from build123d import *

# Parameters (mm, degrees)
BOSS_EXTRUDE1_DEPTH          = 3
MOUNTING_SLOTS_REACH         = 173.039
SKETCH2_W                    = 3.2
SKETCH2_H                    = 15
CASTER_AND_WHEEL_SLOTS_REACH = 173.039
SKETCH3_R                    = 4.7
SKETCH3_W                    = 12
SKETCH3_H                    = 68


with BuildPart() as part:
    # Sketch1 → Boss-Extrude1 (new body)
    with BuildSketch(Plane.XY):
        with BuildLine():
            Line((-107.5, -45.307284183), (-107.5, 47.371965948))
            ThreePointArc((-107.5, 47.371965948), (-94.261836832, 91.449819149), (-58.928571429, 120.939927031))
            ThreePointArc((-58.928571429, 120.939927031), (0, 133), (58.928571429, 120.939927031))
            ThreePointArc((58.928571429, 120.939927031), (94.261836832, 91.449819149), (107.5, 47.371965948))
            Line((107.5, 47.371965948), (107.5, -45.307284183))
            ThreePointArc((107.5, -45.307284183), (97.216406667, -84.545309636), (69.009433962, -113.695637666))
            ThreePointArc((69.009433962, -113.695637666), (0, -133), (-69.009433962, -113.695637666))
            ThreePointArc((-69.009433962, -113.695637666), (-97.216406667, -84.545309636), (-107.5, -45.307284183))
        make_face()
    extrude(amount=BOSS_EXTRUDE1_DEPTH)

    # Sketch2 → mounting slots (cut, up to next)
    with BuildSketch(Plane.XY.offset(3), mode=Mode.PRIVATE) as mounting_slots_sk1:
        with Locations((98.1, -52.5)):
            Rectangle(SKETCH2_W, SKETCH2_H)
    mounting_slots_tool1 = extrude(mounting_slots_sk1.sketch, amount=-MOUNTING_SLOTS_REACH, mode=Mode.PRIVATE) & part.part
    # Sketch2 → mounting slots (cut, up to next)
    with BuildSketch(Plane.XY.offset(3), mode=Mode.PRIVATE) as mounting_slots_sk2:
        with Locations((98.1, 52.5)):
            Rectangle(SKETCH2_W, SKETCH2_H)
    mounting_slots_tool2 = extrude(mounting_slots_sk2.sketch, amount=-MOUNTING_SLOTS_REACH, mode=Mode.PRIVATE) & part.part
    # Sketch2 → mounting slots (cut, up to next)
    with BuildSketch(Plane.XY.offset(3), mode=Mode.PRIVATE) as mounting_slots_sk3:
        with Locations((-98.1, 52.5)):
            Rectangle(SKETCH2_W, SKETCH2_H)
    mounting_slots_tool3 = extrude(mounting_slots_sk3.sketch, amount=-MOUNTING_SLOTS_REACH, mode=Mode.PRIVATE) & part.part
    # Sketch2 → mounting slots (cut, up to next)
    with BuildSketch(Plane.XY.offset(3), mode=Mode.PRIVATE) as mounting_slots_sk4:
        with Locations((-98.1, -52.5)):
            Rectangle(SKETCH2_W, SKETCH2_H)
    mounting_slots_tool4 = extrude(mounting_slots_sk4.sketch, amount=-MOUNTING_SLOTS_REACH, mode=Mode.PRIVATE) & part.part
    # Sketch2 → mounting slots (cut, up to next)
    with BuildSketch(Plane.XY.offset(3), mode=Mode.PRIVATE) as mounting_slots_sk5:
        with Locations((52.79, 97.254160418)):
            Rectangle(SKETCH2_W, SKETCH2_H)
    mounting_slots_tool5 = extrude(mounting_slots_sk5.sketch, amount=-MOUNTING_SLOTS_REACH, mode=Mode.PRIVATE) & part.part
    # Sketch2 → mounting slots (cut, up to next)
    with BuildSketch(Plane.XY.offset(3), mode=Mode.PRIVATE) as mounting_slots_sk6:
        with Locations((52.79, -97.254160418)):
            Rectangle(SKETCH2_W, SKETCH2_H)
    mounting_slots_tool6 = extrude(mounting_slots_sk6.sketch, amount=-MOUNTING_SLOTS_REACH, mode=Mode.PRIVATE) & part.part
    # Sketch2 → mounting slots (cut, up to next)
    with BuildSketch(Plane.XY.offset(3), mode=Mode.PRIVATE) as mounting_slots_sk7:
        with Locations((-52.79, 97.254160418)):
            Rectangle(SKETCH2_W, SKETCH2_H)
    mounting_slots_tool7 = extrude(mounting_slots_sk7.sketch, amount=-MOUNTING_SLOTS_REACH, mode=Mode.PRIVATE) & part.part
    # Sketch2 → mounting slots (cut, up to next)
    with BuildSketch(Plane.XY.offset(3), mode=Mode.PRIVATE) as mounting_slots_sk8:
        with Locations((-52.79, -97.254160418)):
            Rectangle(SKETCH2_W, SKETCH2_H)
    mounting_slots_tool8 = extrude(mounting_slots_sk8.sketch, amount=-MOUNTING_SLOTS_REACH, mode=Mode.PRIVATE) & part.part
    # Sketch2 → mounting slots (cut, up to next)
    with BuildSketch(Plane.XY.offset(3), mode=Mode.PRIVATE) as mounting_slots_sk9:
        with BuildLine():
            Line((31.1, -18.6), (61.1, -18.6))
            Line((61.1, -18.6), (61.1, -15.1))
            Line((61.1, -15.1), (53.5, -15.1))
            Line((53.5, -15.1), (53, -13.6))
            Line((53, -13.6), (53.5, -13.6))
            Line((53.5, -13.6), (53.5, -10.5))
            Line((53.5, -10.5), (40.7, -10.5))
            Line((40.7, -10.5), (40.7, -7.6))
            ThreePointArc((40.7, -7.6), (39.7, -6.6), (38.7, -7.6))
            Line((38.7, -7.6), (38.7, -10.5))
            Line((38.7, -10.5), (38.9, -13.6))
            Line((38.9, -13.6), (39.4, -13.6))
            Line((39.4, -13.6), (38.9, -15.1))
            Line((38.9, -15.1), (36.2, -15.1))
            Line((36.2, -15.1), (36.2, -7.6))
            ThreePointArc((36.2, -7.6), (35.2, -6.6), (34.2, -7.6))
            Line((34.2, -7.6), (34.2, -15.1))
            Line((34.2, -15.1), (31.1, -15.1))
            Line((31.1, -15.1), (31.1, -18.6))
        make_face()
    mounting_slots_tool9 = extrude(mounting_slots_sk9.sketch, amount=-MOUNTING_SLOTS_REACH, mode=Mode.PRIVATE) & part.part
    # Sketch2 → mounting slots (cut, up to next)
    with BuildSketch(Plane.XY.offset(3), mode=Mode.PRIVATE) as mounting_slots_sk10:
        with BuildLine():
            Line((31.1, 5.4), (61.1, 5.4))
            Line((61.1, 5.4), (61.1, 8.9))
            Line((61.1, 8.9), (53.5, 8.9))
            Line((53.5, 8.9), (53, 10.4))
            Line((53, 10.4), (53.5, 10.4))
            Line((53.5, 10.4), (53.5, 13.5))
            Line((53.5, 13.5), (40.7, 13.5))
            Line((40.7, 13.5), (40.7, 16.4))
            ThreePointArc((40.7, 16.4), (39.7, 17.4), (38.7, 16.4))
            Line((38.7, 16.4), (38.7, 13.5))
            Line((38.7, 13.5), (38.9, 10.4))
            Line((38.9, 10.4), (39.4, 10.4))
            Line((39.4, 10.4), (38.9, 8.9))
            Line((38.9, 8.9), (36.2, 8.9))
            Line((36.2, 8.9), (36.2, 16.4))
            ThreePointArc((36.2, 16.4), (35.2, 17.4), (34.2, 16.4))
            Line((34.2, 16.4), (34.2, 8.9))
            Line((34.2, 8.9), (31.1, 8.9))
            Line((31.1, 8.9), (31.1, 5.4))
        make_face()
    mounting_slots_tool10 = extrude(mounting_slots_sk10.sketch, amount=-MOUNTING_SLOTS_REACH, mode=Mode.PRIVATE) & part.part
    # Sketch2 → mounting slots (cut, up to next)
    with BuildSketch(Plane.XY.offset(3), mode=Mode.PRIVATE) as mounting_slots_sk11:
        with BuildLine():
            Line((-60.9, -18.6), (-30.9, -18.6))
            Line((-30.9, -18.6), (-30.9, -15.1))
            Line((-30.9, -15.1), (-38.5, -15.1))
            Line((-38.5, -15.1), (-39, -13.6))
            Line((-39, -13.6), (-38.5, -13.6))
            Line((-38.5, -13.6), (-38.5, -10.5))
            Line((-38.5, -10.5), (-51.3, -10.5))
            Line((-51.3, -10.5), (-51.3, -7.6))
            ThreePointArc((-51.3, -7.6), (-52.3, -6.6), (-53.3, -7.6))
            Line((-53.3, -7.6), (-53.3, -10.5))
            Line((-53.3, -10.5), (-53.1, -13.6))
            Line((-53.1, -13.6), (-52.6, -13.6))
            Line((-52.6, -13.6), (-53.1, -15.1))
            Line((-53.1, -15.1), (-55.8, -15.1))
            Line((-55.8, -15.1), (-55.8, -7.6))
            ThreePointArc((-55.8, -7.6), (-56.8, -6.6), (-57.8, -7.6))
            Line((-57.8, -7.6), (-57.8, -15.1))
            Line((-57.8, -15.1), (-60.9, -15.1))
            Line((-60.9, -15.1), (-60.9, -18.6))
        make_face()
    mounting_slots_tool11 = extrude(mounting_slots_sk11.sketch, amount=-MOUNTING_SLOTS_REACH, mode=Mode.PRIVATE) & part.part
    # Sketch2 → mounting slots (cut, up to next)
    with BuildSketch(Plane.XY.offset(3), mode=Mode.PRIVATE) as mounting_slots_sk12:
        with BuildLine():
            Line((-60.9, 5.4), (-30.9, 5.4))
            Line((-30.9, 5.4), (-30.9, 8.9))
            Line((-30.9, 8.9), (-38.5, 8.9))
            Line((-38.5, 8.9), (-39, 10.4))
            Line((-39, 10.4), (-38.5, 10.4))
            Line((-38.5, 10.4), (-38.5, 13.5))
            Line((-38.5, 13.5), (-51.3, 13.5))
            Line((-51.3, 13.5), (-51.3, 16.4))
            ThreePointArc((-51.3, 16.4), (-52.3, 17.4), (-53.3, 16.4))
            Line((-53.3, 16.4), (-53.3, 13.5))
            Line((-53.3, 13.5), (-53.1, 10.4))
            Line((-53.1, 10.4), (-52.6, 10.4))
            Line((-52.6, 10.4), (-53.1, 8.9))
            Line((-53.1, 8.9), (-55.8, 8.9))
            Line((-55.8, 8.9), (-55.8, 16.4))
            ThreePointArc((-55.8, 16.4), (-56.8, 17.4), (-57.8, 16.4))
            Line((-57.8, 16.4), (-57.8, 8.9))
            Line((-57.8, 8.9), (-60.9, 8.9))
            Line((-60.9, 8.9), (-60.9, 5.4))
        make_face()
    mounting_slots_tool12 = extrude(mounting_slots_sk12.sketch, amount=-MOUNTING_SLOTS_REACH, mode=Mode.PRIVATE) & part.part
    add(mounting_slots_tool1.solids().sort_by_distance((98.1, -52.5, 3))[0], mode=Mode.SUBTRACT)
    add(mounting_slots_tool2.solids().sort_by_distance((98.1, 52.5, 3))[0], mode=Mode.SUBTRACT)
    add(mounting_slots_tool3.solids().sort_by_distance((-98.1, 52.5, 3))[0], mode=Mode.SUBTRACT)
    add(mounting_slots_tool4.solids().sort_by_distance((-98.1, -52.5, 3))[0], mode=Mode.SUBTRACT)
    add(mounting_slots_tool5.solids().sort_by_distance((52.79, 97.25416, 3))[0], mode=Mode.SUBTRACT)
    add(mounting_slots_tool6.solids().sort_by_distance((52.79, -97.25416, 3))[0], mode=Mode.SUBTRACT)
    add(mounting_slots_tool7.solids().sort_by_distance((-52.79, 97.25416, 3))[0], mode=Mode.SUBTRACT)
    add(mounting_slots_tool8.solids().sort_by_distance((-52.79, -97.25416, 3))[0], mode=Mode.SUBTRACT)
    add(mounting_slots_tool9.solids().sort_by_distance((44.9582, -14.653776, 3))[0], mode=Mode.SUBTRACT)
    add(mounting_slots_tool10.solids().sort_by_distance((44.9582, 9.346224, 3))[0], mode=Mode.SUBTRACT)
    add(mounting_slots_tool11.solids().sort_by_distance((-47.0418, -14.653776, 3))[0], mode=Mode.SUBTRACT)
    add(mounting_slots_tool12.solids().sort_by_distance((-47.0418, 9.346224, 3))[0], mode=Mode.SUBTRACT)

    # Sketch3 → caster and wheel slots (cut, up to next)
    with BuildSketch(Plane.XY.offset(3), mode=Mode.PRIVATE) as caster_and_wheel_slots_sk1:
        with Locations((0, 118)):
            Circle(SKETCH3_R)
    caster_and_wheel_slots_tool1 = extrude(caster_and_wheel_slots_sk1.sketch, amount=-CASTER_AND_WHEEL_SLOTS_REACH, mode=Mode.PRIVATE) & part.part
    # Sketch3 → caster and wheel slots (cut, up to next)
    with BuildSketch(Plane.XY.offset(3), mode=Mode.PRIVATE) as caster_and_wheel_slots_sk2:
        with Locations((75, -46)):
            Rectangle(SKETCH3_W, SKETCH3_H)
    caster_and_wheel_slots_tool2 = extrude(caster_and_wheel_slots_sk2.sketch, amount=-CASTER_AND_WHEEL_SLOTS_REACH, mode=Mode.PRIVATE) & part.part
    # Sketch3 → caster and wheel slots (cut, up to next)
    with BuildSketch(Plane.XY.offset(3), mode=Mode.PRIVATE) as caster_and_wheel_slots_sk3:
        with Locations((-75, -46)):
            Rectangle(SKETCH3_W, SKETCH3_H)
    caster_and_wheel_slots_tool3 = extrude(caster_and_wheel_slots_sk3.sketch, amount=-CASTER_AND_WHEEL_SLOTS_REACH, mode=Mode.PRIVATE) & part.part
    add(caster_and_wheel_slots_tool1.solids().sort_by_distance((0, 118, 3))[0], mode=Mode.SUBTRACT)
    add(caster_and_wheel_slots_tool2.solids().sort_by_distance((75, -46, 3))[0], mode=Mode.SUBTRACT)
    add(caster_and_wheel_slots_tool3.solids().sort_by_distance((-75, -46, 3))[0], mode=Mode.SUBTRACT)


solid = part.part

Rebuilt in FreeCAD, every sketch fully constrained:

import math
import FreeCAD as App
import Part
import Sketcher

V = App.Vector

doc = App.newDocument("Part")
body = doc.addObject("PartDesign::Body", "Body")

sketch1 = body.newObject("Sketcher::SketchObject", "Sketch")
sketch1.AttachmentSupport = (doc.getObject("XY_Plane"), [""])
sketch1.MapMode = "FlatFace"
sketch1.addGeometry([
    Part.LineSegment(V(-108, 47, 0), V(-108, -45, 0)),
    Part.ArcOfCircle(Part.Circle(V(-28, -45, 0), V(0, 0, 1), 80), math.radians(180), math.radians(239)),
    Part.ArcOfCircle(Part.Circle(V(0, 0, 0), V(0, 0, 1), 133), math.radians(-121), math.radians(-59)),
    Part.ArcOfCircle(Part.Circle(V(28, -45, 0), V(0, 0, 1), 80), math.radians(-59), math.radians(0)),
    Part.LineSegment(V(108, -45, 0), V(108, 47, 0)),
    Part.ArcOfCircle(Part.Circle(V(28, 47, 0), V(0, 0, 1), 80), math.radians(0), math.radians(67)),
    Part.ArcOfCircle(Part.Circle(V(0, -17, 0), V(0, 0, 1), 150), math.radians(67), math.radians(113)),
    Part.ArcOfCircle(Part.Circle(V(-28, 47, 0), V(0, 0, 1), 80), math.radians(113), math.radians(180)),
], False)
sketch1.addConstraint([
    Sketcher.Constraint("Tangent", 0, 2, 1, 1),
    Sketcher.Constraint("Tangent", 1, 2, 2, 1),
    Sketcher.Constraint("Tangent", 2, 2, 3, 1),
    Sketcher.Constraint("Tangent", 3, 2, 4, 1),
    Sketcher.Constraint("Tangent", 4, 2, 5, 1),
    Sketcher.Constraint("Tangent", 5, 2, 6, 1),
    Sketcher.Constraint("Tangent", 6, 2, 7, 1),
    Sketcher.Constraint("Tangent", 7, 2, 0, 1),
    Sketcher.Constraint("Vertical", 0),
    Sketcher.Constraint("Vertical", 4),
    Sketcher.Constraint("Coincident", 2, 3, -1, 1),
    Sketcher.Constraint("Equal", 1, 3),
    Sketcher.Constraint("Equal", 3, 5),
    Sketcher.Constraint("Equal", 5, 7),
    Sketcher.Constraint("Symmetric", 5, 3, 7, 3, -2),
    Sketcher.Constraint("Radius", 1, 80.0),
    Sketcher.Constraint("Radius", 2, 133.0),
    Sketcher.Constraint("Radius", 6, 150.0),
    Sketcher.Constraint("DistanceY", 6, 3, -1, 1, 17.0),
    Sketcher.Constraint("DistanceX", 1, 3, 3, 3, 55.0),
])
pad1 = body.newObject("PartDesign::Pad", "Pad")
pad1.Profile = sketch1
pad1.Length = 3

sketch2 = body.newObject("Sketcher::SketchObject", "Sketch001")
sketch2.AttachmentSupport = (doc.getObject("XY_Plane"), [""])
sketch2.MapMode = "FlatFace"
sketch2.AttachmentOffset = App.Placement(V(0, 0, 3), App.Rotation())
sketch2.addGeometry([
    Part.LineSegment(V(96.5, -45, 0), V(96.5, -60, 0)),
    Part.LineSegment(V(96.5, -60, 0), V(99.7, -60, 0)),
    Part.LineSegment(V(99.7, -60, 0), V(99.7, -45, 0)),
    Part.LineSegment(V(99.7, -45, 0), V(96.5, -45, 0)),
], False)
sketch2.addConstraint([
    Sketcher.Constraint("Coincident", 0, 2, 1, 1),
    Sketcher.Constraint("Coincident", 1, 2, 2, 1),
    Sketcher.Constraint("Coincident", 2, 2, 3, 1),
    Sketcher.Constraint("Coincident", 3, 2, 0, 1),
    Sketcher.Constraint("Vertical", 0),
    Sketcher.Constraint("Horizontal", 1),
    Sketcher.Constraint("Vertical", 2),
    Sketcher.Constraint("Horizontal", 3),
    Sketcher.Constraint("DistanceY", 0, 2, 0, 1, 15.0),
    Sketcher.Constraint("DistanceX", 1, 1, 1, 2, 3.2),
    Sketcher.Constraint("DistanceY", 0, 2, -1, 1, 60.0),
    Sketcher.Constraint("DistanceX", -1, 1, 0, 2, 96.5),
])
pocket1 = body.newObject("PartDesign::Pocket", "Pocket")
pocket1.Profile = sketch2
pocket1.Type = "UpToFirst"

sketch3 = body.newObject("Sketcher::SketchObject", "Sketch002")
sketch3.AttachmentSupport = (doc.getObject("XY_Plane"), [""])
sketch3.MapMode = "FlatFace"
sketch3.AttachmentOffset = App.Placement(V(0, 0, 3), App.Rotation())
sketch3.addGeometry([
    Part.LineSegment(V(96.5, 60, 0), V(96.5, 45, 0)),
    Part.LineSegment(V(96.5, 45, 0), V(99.7, 45, 0)),
    Part.LineSegment(V(99.7, 45, 0), V(99.7, 60, 0)),
    Part.LineSegment(V(99.7, 60, 0), V(96.5, 60, 0)),
], False)
sketch3.addConstraint([
    Sketcher.Constraint("Coincident", 0, 2, 1, 1),
    Sketcher.Constraint("Coincident", 1, 2, 2, 1),
    Sketcher.Constraint("Coincident", 2, 2, 3, 1),
    Sketcher.Constraint("Coincident", 3, 2, 0, 1),
    Sketcher.Constraint("Vertical", 0),
    Sketcher.Constraint("Horizontal", 1),
    Sketcher.Constraint("Vertical", 2),
    Sketcher.Constraint("Horizontal", 3),
    Sketcher.Constraint("DistanceY", 0, 2, 0, 1, 15.0),
    Sketcher.Constraint("DistanceX", 1, 1, 1, 2, 3.2),
    Sketcher.Constraint("DistanceY", -1, 1, 0, 2, 45.0),
    Sketcher.Constraint("DistanceX", -1, 1, 0, 2, 96.5),
])
pocket2 = body.newObject("PartDesign::Pocket", "Pocket001")
pocket2.Profile = sketch3
pocket2.Type = "UpToFirst"

sketch4 = body.newObject("Sketcher::SketchObject", "Sketch003")
sketch4.AttachmentSupport = (doc.getObject("XY_Plane"), [""])
sketch4.MapMode = "FlatFace"
sketch4.AttachmentOffset = App.Placement(V(0, 0, 3), App.Rotation())
sketch4.addGeometry([
    Part.LineSegment(V(-99.7, 60, 0), V(-99.7, 45, 0)),
    Part.LineSegment(V(-99.7, 45, 0), V(-96.5, 45, 0)),
    Part.LineSegment(V(-96.5, 45, 0), V(-96.5, 60, 0)),
    Part.LineSegment(V(-96.5, 60, 0), V(-99.7, 60, 0)),
], False)
sketch4.addConstraint([
    Sketcher.Constraint("Coincident", 0, 2, 1, 1),
    Sketcher.Constraint("Coincident", 1, 2, 2, 1),
    Sketcher.Constraint("Coincident", 2, 2, 3, 1),
    Sketcher.Constraint("Coincident", 3, 2, 0, 1),
    Sketcher.Constraint("Vertical", 0),
    Sketcher.Constraint("Horizontal", 1),
    Sketcher.Constraint("Vertical", 2),
    Sketcher.Constraint("Horizontal", 3),
    Sketcher.Constraint("DistanceY", 0, 2, 0, 1, 15.0),
    Sketcher.Constraint("DistanceX", 1, 1, 1, 2, 3.2),
    Sketcher.Constraint("DistanceY", -1, 1, 0, 2, 45.0),
    Sketcher.Constraint("DistanceX", 0, 2, -1, 1, 99.7),
])
pocket3 = body.newObject("PartDesign::Pocket", "Pocket002")
pocket3.Profile = sketch4
pocket3.Type = "UpToFirst"

sketch5 = body.newObject("Sketcher::SketchObject", "Sketch004")
sketch5.AttachmentSupport = (doc.getObject("XY_Plane"), [""])
sketch5.MapMode = "FlatFace"
sketch5.AttachmentOffset = App.Placement(V(0, 0, 3), App.Rotation())
sketch5.addGeometry([
    Part.LineSegment(V(-99.7, -45, 0), V(-99.7, -60, 0)),
    Part.LineSegment(V(-99.7, -60, 0), V(-96.5, -60, 0)),
    Part.LineSegment(V(-96.5, -60, 0), V(-96.5, -45, 0)),
    Part.LineSegment(V(-96.5, -45, 0), V(-99.7, -45, 0)),
], False)
sketch5.addConstraint([
    Sketcher.Constraint("Coincident", 0, 2, 1, 1),
    Sketcher.Constraint("Coincident", 1, 2, 2, 1),
    Sketcher.Constraint("Coincident", 2, 2, 3, 1),
    Sketcher.Constraint("Coincident", 3, 2, 0, 1),
    Sketcher.Constraint("Vertical", 0),
    Sketcher.Constraint("Horizontal", 1),
    Sketcher.Constraint("Vertical", 2),
    Sketcher.Constraint("Horizontal", 3),
    Sketcher.Constraint("DistanceY", 0, 2, 0, 1, 15.0),
    Sketcher.Constraint("DistanceX", 1, 1, 1, 2, 3.2),
    Sketcher.Constraint("DistanceY", 0, 2, -1, 1, 60.0),
    Sketcher.Constraint("DistanceX", 0, 2, -1, 1, 99.7),
])
pocket4 = body.newObject("PartDesign::Pocket", "Pocket003")
pocket4.Profile = sketch5
pocket4.Type = "UpToFirst"

sketch6 = body.newObject("Sketcher::SketchObject", "Sketch005")
sketch6.AttachmentSupport = (doc.getObject("XY_Plane"), [""])
sketch6.MapMode = "FlatFace"
sketch6.AttachmentOffset = App.Placement(V(0, 0, 3), App.Rotation())
sketch6.addGeometry([
    Part.LineSegment(V(51.2, 104.8, 0), V(51.2, 89.8, 0)),
    Part.LineSegment(V(51.2, 89.8, 0), V(54.4, 89.8, 0)),
    Part.LineSegment(V(54.4, 89.8, 0), V(54.4, 104.8, 0)),
    Part.LineSegment(V(54.4, 104.8, 0), V(51.2, 104.8, 0)),
], False)
sketch6.addConstraint([
    Sketcher.Constraint("Coincident", 0, 2, 1, 1),
    Sketcher.Constraint("Coincident", 1, 2, 2, 1),
    Sketcher.Constraint("Coincident", 2, 2, 3, 1),
    Sketcher.Constraint("Coincident", 3, 2, 0, 1),
    Sketcher.Constraint("Vertical", 0),
    Sketcher.Constraint("Horizontal", 1),
    Sketcher.Constraint("Vertical", 2),
    Sketcher.Constraint("Horizontal", 3),
    Sketcher.Constraint("DistanceY", 0, 2, 0, 1, 15.0),
    Sketcher.Constraint("DistanceX", 1, 1, 1, 2, 3.2),
    Sketcher.Constraint("DistanceX", -1, 1, 0, 2, 51.19),
    Sketcher.Constraint("DistanceY", -1, 1, 0, 2, 89.75416),
])
pocket5 = body.newObject("PartDesign::Pocket", "Pocket004")
pocket5.Profile = sketch6
pocket5.Type = "UpToFirst"

sketch7 = body.newObject("Sketcher::SketchObject", "Sketch006")
sketch7.AttachmentSupport = (doc.getObject("XY_Plane"), [""])
sketch7.MapMode = "FlatFace"
sketch7.AttachmentOffset = App.Placement(V(0, 0, 3), App.Rotation())
sketch7.addGeometry([
    Part.LineSegment(V(51.2, -89.8, 0), V(51.2, -104.8, 0)),
    Part.LineSegment(V(51.2, -104.8, 0), V(54.4, -104.8, 0)),
    Part.LineSegment(V(54.4, -104.8, 0), V(54.4, -89.8, 0)),
    Part.LineSegment(V(54.4, -89.8, 0), V(51.2, -89.8, 0)),
], False)
sketch7.addConstraint([
    Sketcher.Constraint("Coincident", 0, 2, 1, 1),
    Sketcher.Constraint("Coincident", 1, 2, 2, 1),
    Sketcher.Constraint("Coincident", 2, 2, 3, 1),
    Sketcher.Constraint("Coincident", 3, 2, 0, 1),
    Sketcher.Constraint("Vertical", 0),
    Sketcher.Constraint("Horizontal", 1),
    Sketcher.Constraint("Vertical", 2),
    Sketcher.Constraint("Horizontal", 3),
    Sketcher.Constraint("DistanceY", 0, 2, 0, 1, 15.0),
    Sketcher.Constraint("DistanceX", 1, 1, 1, 2, 3.2),
    Sketcher.Constraint("DistanceX", -1, 1, 0, 2, 51.19),
    Sketcher.Constraint("DistanceY", 0, 2, -1, 1, 104.75416),
])
pocket6 = body.newObject("PartDesign::Pocket", "Pocket005")
pocket6.Profile = sketch7
pocket6.Type = "UpToFirst"

sketch8 = body.newObject("Sketcher::SketchObject", "Sketch007")
sketch8.AttachmentSupport = (doc.getObject("XY_Plane"), [""])
sketch8.MapMode = "FlatFace"
sketch8.AttachmentOffset = App.Placement(V(0, 0, 3), App.Rotation())
sketch8.addGeometry([
    Part.LineSegment(V(-54.4, 104.8, 0), V(-54.4, 89.8, 0)),
    Part.LineSegment(V(-54.4, 89.8, 0), V(-51.2, 89.8, 0)),
    Part.LineSegment(V(-51.2, 89.8, 0), V(-51.2, 104.8, 0)),
    Part.LineSegment(V(-51.2, 104.8, 0), V(-54.4, 104.8, 0)),
], False)
sketch8.addConstraint([
    Sketcher.Constraint("Coincident", 0, 2, 1, 1),
    Sketcher.Constraint("Coincident", 1, 2, 2, 1),
    Sketcher.Constraint("Coincident", 2, 2, 3, 1),
    Sketcher.Constraint("Coincident", 3, 2, 0, 1),
    Sketcher.Constraint("Vertical", 0),
    Sketcher.Constraint("Horizontal", 1),
    Sketcher.Constraint("Vertical", 2),
    Sketcher.Constraint("Horizontal", 3),
    Sketcher.Constraint("DistanceY", 0, 2, 0, 1, 15.0),
    Sketcher.Constraint("DistanceX", 1, 1, 1, 2, 3.2),
    Sketcher.Constraint("DistanceX", 0, 2, -1, 1, 54.39),
    Sketcher.Constraint("DistanceY", -1, 1, 0, 2, 89.75416),
])
pocket7 = body.newObject("PartDesign::Pocket", "Pocket006")
pocket7.Profile = sketch8
pocket7.Type = "UpToFirst"

sketch9 = body.newObject("Sketcher::SketchObject", "Sketch008")
sketch9.AttachmentSupport = (doc.getObject("XY_Plane"), [""])
sketch9.MapMode = "FlatFace"
sketch9.AttachmentOffset = App.Placement(V(0, 0, 3), App.Rotation())
sketch9.addGeometry([
    Part.LineSegment(V(-54.4, -89.8, 0), V(-54.4, -104.8, 0)),
    Part.LineSegment(V(-54.4, -104.8, 0), V(-51.2, -104.8, 0)),
    Part.LineSegment(V(-51.2, -104.8, 0), V(-51.2, -89.8, 0)),
    Part.LineSegment(V(-51.2, -89.8, 0), V(-54.4, -89.8, 0)),
], False)
sketch9.addConstraint([
    Sketcher.Constraint("Coincident", 0, 2, 1, 1),
    Sketcher.Constraint("Coincident", 1, 2, 2, 1),
    Sketcher.Constraint("Coincident", 2, 2, 3, 1),
    Sketcher.Constraint("Coincident", 3, 2, 0, 1),
    Sketcher.Constraint("Vertical", 0),
    Sketcher.Constraint("Horizontal", 1),
    Sketcher.Constraint("Vertical", 2),
    Sketcher.Constraint("Horizontal", 3),
    Sketcher.Constraint("DistanceY", 0, 2, 0, 1, 15.0),
    Sketcher.Constraint("DistanceX", 1, 1, 1, 2, 3.2),
    Sketcher.Constraint("DistanceX", 0, 2, -1, 1, 54.39),
    Sketcher.Constraint("DistanceY", 0, 2, -1, 1, 104.75416),
])
pocket8 = body.newObject("PartDesign::Pocket", "Pocket007")
pocket8.Profile = sketch9
pocket8.Type = "UpToFirst"

sketch10 = body.newObject("Sketcher::SketchObject", "Sketch009")
sketch10.AttachmentSupport = (doc.getObject("XY_Plane"), [""])
sketch10.MapMode = "FlatFace"
sketch10.AttachmentOffset = App.Placement(V(0, 0, 3), App.Rotation())
sketch10.addGeometry([
    Part.LineSegment(V(31.1, -18.6, 0), V(61.1, -18.6, 0)),
    Part.LineSegment(V(61.1, -18.6, 0), V(61.1, -15.1, 0)),
    Part.LineSegment(V(61.1, -15.1, 0), V(53.5, -15.1, 0)),
    Part.LineSegment(V(53.5, -15.1, 0), V(53, -13.6, 0)),
    Part.LineSegment(V(53, -13.6, 0), V(53.5, -13.6, 0)),
    Part.LineSegment(V(53.5, -13.6, 0), V(53.5, -10.5, 0)),
    Part.LineSegment(V(53.5, -10.5, 0), V(40.7, -10.5, 0)),
    Part.LineSegment(V(40.7, -10.5, 0), V(40.7, -7.6, 0)),
    Part.ArcOfCircle(Part.Circle(V(39.7, -7.6, 0), V(0, 0, 1), 1), math.radians(0), math.radians(180)),
    Part.LineSegment(V(38.7, -7.6, 0), V(38.7, -10.5, 0)),
    Part.LineSegment(V(38.7, -10.5, 0), V(38.9, -13.6, 0)),
    Part.LineSegment(V(38.9, -13.6, 0), V(39.4, -13.6, 0)),
    Part.LineSegment(V(39.4, -13.6, 0), V(38.9, -15.1, 0)),
    Part.LineSegment(V(38.9, -15.1, 0), V(36.2, -15.1, 0)),
    Part.LineSegment(V(36.2, -15.1, 0), V(36.2, -7.6, 0)),
    Part.ArcOfCircle(Part.Circle(V(35.2, -7.6, 0), V(0, 0, 1), 1), math.radians(0), math.radians(180)),
    Part.LineSegment(V(34.2, -7.6, 0), V(34.2, -15.1, 0)),
    Part.LineSegment(V(34.2, -15.1, 0), V(31.1, -15.1, 0)),
    Part.LineSegment(V(31.1, -15.1, 0), V(31.1, -18.6, 0)),
], False)
sketch10.addConstraint([
    Sketcher.Constraint("Coincident", 0, 2, 1, 1),
    Sketcher.Constraint("Coincident", 1, 2, 2, 1),
    Sketcher.Constraint("Coincident", 2, 2, 3, 1),
    Sketcher.Constraint("Coincident", 3, 2, 4, 1),
    Sketcher.Constraint("Coincident", 4, 2, 5, 1),
    Sketcher.Constraint("Coincident", 5, 2, 6, 1),
    Sketcher.Constraint("Coincident", 6, 2, 7, 1),
    Sketcher.Constraint("Tangent", 7, 2, 8, 1),
    Sketcher.Constraint("Tangent", 8, 2, 9, 1),
    Sketcher.Constraint("Coincident", 9, 2, 10, 1),
    Sketcher.Constraint("Coincident", 10, 2, 11, 1),
    Sketcher.Constraint("Coincident", 11, 2, 12, 1),
    Sketcher.Constraint("Coincident", 12, 2, 13, 1),
    Sketcher.Constraint("Coincident", 13, 2, 14, 1),
    Sketcher.Constraint("Tangent", 14, 2, 15, 1),
    Sketcher.Constraint("Tangent", 15, 2, 16, 1),
    Sketcher.Constraint("Coincident", 16, 2, 17, 1),
    Sketcher.Constraint("Coincident", 17, 2, 18, 1),
    Sketcher.Constraint("Coincident", 18, 2, 0, 1),
    Sketcher.Constraint("Horizontal", 0),
    Sketcher.Constraint("Vertical", 1),
    Sketcher.Constraint("Horizontal", 2),
    Sketcher.Constraint("Horizontal", 4),
    Sketcher.Constraint("Vertical", 5),
    Sketcher.Constraint("Horizontal", 6),
    Sketcher.Constraint("Vertical", 7),
    Sketcher.Constraint("Vertical", 9),
    Sketcher.Constraint("Horizontal", 11),
    Sketcher.Constraint("Horizontal", 13),
    Sketcher.Constraint("Vertical", 14),
    Sketcher.Constraint("Vertical", 16),
    Sketcher.Constraint("Horizontal", 17),
    Sketcher.Constraint("Vertical", 18),
    Sketcher.Constraint("Equal", 8, 15),
    Sketcher.Constraint("Horizontal", 8, 3, 15, 3),
    Sketcher.Constraint("Horizontal", 6, 2, 9, 2),
    Sketcher.Constraint("Horizontal", 4, 2, 10, 2),
    Sketcher.Constraint("Horizontal", 2, 2, 12, 2),
    Sketcher.Constraint("Horizontal", 13, 2, 16, 2),
    Sketcher.Constraint("Vertical", 2, 2, 4, 2),
    Sketcher.Constraint("Vertical", 10, 2, 12, 2),
    Sketcher.Constraint("Equal", 4, 11),
    Sketcher.Constraint("Equal", 17, 5),
    Sketcher.Constraint("Radius", 8, 1.0),
    Sketcher.Constraint("DistanceX", 0, 1, 0, 2, 30.0),
    Sketcher.Constraint("DistanceX", 2, 2, 2, 1, 7.6),
    Sketcher.Constraint("DistanceX", 4, 1, 4, 2, 0.5),
    Sketcher.Constraint("DistanceX", 6, 2, 6, 1, 12.8),
    Sketcher.Constraint("DistanceX", 13, 2, 13, 1, 2.7),
    Sketcher.Constraint("DistanceX", 17, 2, 17, 1, 3.1),
    Sketcher.Constraint("DistanceY", 1, 1, 1, 2, 3.5),
    Sketcher.Constraint("DistanceY", 7, 1, 7, 2, 2.9),
    Sketcher.Constraint("DistanceY", 14, 1, 14, 2, 7.5),
    Sketcher.Constraint("DistanceX", -1, 1, 3, 2, 53.0),
    Sketcher.Constraint("DistanceY", 8, 3, -1, 1, 7.6),
])
pocket9 = body.newObject("PartDesign::Pocket", "Pocket008")
pocket9.Profile = sketch10
pocket9.Type = "UpToFirst"

sketch11 = body.newObject("Sketcher::SketchObject", "Sketch010")
sketch11.AttachmentSupport = (doc.getObject("XY_Plane"), [""])
sketch11.MapMode = "FlatFace"
sketch11.AttachmentOffset = App.Placement(V(0, 0, 3), App.Rotation())
sketch11.addGeometry([
    Part.LineSegment(V(31.1, 5.4, 0), V(61.1, 5.4, 0)),
    Part.LineSegment(V(61.1, 5.4, 0), V(61.1, 8.9, 0)),
    Part.LineSegment(V(61.1, 8.9, 0), V(53.5, 8.9, 0)),
    Part.LineSegment(V(53.5, 8.9, 0), V(53, 10.4, 0)),
    Part.LineSegment(V(53, 10.4, 0), V(53.5, 10.4, 0)),
    Part.LineSegment(V(53.5, 10.4, 0), V(53.5, 13.5, 0)),
    Part.LineSegment(V(53.5, 13.5, 0), V(40.7, 13.5, 0)),
    Part.LineSegment(V(40.7, 13.5, 0), V(40.7, 16.4, 0)),
    Part.ArcOfCircle(Part.Circle(V(39.7, 16.4, 0), V(0, 0, 1), 1), math.radians(0), math.radians(180)),
    Part.LineSegment(V(38.7, 16.4, 0), V(38.7, 13.5, 0)),
    Part.LineSegment(V(38.7, 13.5, 0), V(38.9, 10.4, 0)),
    Part.LineSegment(V(38.9, 10.4, 0), V(39.4, 10.4, 0)),
    Part.LineSegment(V(39.4, 10.4, 0), V(38.9, 8.9, 0)),
    Part.LineSegment(V(38.9, 8.9, 0), V(36.2, 8.9, 0)),
    Part.LineSegment(V(36.2, 8.9, 0), V(36.2, 16.4, 0)),
    Part.ArcOfCircle(Part.Circle(V(35.2, 16.4, 0), V(0, 0, 1), 1), math.radians(0), math.radians(180)),
    Part.LineSegment(V(34.2, 16.4, 0), V(34.2, 8.9, 0)),
    Part.LineSegment(V(34.2, 8.9, 0), V(31.1, 8.9, 0)),
    Part.LineSegment(V(31.1, 8.9, 0), V(31.1, 5.4, 0)),
], False)
sketch11.addConstraint([
    Sketcher.Constraint("Coincident", 0, 2, 1, 1),
    Sketcher.Constraint("Coincident", 1, 2, 2, 1),
    Sketcher.Constraint("Coincident", 2, 2, 3, 1),
    Sketcher.Constraint("Coincident", 3, 2, 4, 1),
    Sketcher.Constraint("Coincident", 4, 2, 5, 1),
    Sketcher.Constraint("Coincident", 5, 2, 6, 1),
    Sketcher.Constraint("Coincident", 6, 2, 7, 1),
    Sketcher.Constraint("Tangent", 7, 2, 8, 1),
    Sketcher.Constraint("Tangent", 8, 2, 9, 1),
    Sketcher.Constraint("Coincident", 9, 2, 10, 1),
    Sketcher.Constraint("Coincident", 10, 2, 11, 1),
    Sketcher.Constraint("Coincident", 11, 2, 12, 1),
    Sketcher.Constraint("Coincident", 12, 2, 13, 1),
    Sketcher.Constraint("Coincident", 13, 2, 14, 1),
    Sketcher.Constraint("Tangent", 14, 2, 15, 1),
    Sketcher.Constraint("Tangent", 15, 2, 16, 1),
    Sketcher.Constraint("Coincident", 16, 2, 17, 1),
    Sketcher.Constraint("Coincident", 17, 2, 18, 1),
    Sketcher.Constraint("Coincident", 18, 2, 0, 1),
    Sketcher.Constraint("Horizontal", 0),
    Sketcher.Constraint("Vertical", 1),
    Sketcher.Constraint("Horizontal", 2),
    Sketcher.Constraint("Horizontal", 4),
    Sketcher.Constraint("Vertical", 5),
    Sketcher.Constraint("Horizontal", 6),
    Sketcher.Constraint("Vertical", 7),
    Sketcher.Constraint("Vertical", 9),
    Sketcher.Constraint("Horizontal", 11),
    Sketcher.Constraint("Horizontal", 13),
    Sketcher.Constraint("Vertical", 14),
    Sketcher.Constraint("Vertical", 16),
    Sketcher.Constraint("Horizontal", 17),
    Sketcher.Constraint("Vertical", 18),
    Sketcher.Constraint("Equal", 8, 15),
    Sketcher.Constraint("Horizontal", 8, 3, 15, 3),
    Sketcher.Constraint("Horizontal", 6, 2, 9, 2),
    Sketcher.Constraint("Horizontal", 4, 2, 10, 2),
    Sketcher.Constraint("Horizontal", 2, 2, 12, 2),
    Sketcher.Constraint("Horizontal", 13, 2, 16, 2),
    Sketcher.Constraint("Vertical", 2, 2, 4, 2),
    Sketcher.Constraint("Vertical", 10, 2, 12, 2),
    Sketcher.Constraint("Equal", 4, 11),
    Sketcher.Constraint("Equal", 17, 5),
    Sketcher.Constraint("Radius", 8, 1.0),
    Sketcher.Constraint("DistanceX", 0, 1, 0, 2, 30.0),
    Sketcher.Constraint("DistanceX", 2, 2, 2, 1, 7.6),
    Sketcher.Constraint("DistanceX", 4, 1, 4, 2, 0.5),
    Sketcher.Constraint("DistanceX", 6, 2, 6, 1, 12.8),
    Sketcher.Constraint("DistanceX", 13, 2, 13, 1, 2.7),
    Sketcher.Constraint("DistanceX", 17, 2, 17, 1, 3.1),
    Sketcher.Constraint("DistanceY", 1, 1, 1, 2, 3.5),
    Sketcher.Constraint("DistanceY", 7, 1, 7, 2, 2.9),
    Sketcher.Constraint("DistanceY", 14, 1, 14, 2, 7.5),
    Sketcher.Constraint("DistanceX", -1, 1, 3, 2, 53.0),
    Sketcher.Constraint("DistanceY", -1, 1, 8, 3, 16.4),
])
pocket10 = body.newObject("PartDesign::Pocket", "Pocket009")
pocket10.Profile = sketch11
pocket10.Type = "UpToFirst"

sketch12 = body.newObject("Sketcher::SketchObject", "Sketch011")
sketch12.AttachmentSupport = (doc.getObject("XY_Plane"), [""])
sketch12.MapMode = "FlatFace"
sketch12.AttachmentOffset = App.Placement(V(0, 0, 3), App.Rotation())
sketch12.addGeometry([
    Part.LineSegment(V(-60.9, -18.6, 0), V(-30.9, -18.6, 0)),
    Part.LineSegment(V(-30.9, -18.6, 0), V(-30.9, -15.1, 0)),
    Part.LineSegment(V(-30.9, -15.1, 0), V(-38.5, -15.1, 0)),
    Part.LineSegment(V(-38.5, -15.1, 0), V(-39, -13.6, 0)),
    Part.LineSegment(V(-39, -13.6, 0), V(-38.5, -13.6, 0)),
    Part.LineSegment(V(-38.5, -13.6, 0), V(-38.5, -10.5, 0)),
    Part.LineSegment(V(-38.5, -10.5, 0), V(-51.3, -10.5, 0)),
    Part.LineSegment(V(-51.3, -10.5, 0), V(-51.3, -7.6, 0)),
    Part.ArcOfCircle(Part.Circle(V(-52.3, -7.6, 0), V(0, 0, 1), 1), math.radians(0), math.radians(180)),
    Part.LineSegment(V(-53.3, -7.6, 0), V(-53.3, -10.5, 0)),
    Part.LineSegment(V(-53.3, -10.5, 0), V(-53.1, -13.6, 0)),
    Part.LineSegment(V(-53.1, -13.6, 0), V(-52.6, -13.6, 0)),
    Part.LineSegment(V(-52.6, -13.6, 0), V(-53.1, -15.1, 0)),
    Part.LineSegment(V(-53.1, -15.1, 0), V(-55.8, -15.1, 0)),
    Part.LineSegment(V(-55.8, -15.1, 0), V(-55.8, -7.6, 0)),
    Part.ArcOfCircle(Part.Circle(V(-56.8, -7.6, 0), V(0, 0, 1), 1), math.radians(0), math.radians(180)),
    Part.LineSegment(V(-57.8, -7.6, 0), V(-57.8, -15.1, 0)),
    Part.LineSegment(V(-57.8, -15.1, 0), V(-60.9, -15.1, 0)),
    Part.LineSegment(V(-60.9, -15.1, 0), V(-60.9, -18.6, 0)),
], False)
sketch12.addConstraint([
    Sketcher.Constraint("Coincident", 0, 2, 1, 1),
    Sketcher.Constraint("Coincident", 1, 2, 2, 1),
    Sketcher.Constraint("Coincident", 2, 2, 3, 1),
    Sketcher.Constraint("Coincident", 3, 2, 4, 1),
    Sketcher.Constraint("Coincident", 4, 2, 5, 1),
    Sketcher.Constraint("Coincident", 5, 2, 6, 1),
    Sketcher.Constraint("Coincident", 6, 2, 7, 1),
    Sketcher.Constraint("Tangent", 7, 2, 8, 1),
    Sketcher.Constraint("Tangent", 8, 2, 9, 1),
    Sketcher.Constraint("Coincident", 9, 2, 10, 1),
    Sketcher.Constraint("Coincident", 10, 2, 11, 1),
    Sketcher.Constraint("Coincident", 11, 2, 12, 1),
    Sketcher.Constraint("Coincident", 12, 2, 13, 1),
    Sketcher.Constraint("Coincident", 13, 2, 14, 1),
    Sketcher.Constraint("Tangent", 14, 2, 15, 1),
    Sketcher.Constraint("Tangent", 15, 2, 16, 1),
    Sketcher.Constraint("Coincident", 16, 2, 17, 1),
    Sketcher.Constraint("Coincident", 17, 2, 18, 1),
    Sketcher.Constraint("Coincident", 18, 2, 0, 1),
    Sketcher.Constraint("Horizontal", 0),
    Sketcher.Constraint("Vertical", 1),
    Sketcher.Constraint("Horizontal", 2),
    Sketcher.Constraint("Horizontal", 4),
    Sketcher.Constraint("Vertical", 5),
    Sketcher.Constraint("Horizontal", 6),
    Sketcher.Constraint("Vertical", 7),
    Sketcher.Constraint("Vertical", 9),
    Sketcher.Constraint("Horizontal", 11),
    Sketcher.Constraint("Horizontal", 13),
    Sketcher.Constraint("Vertical", 14),
    Sketcher.Constraint("Vertical", 16),
    Sketcher.Constraint("Horizontal", 17),
    Sketcher.Constraint("Vertical", 18),
    Sketcher.Constraint("Equal", 8, 15),
    Sketcher.Constraint("Horizontal", 8, 3, 15, 3),
    Sketcher.Constraint("Horizontal", 6, 2, 9, 2),
    Sketcher.Constraint("Horizontal", 4, 2, 10, 2),
    Sketcher.Constraint("Horizontal", 2, 2, 12, 2),
    Sketcher.Constraint("Horizontal", 13, 2, 16, 2),
    Sketcher.Constraint("Vertical", 2, 2, 4, 2),
    Sketcher.Constraint("Vertical", 10, 2, 12, 2),
    Sketcher.Constraint("Equal", 4, 11),
    Sketcher.Constraint("Equal", 17, 5),
    Sketcher.Constraint("Radius", 8, 1.0),
    Sketcher.Constraint("DistanceX", 0, 1, 0, 2, 30.0),
    Sketcher.Constraint("DistanceX", 2, 2, 2, 1, 7.6),
    Sketcher.Constraint("DistanceX", 4, 1, 4, 2, 0.5),
    Sketcher.Constraint("DistanceX", 6, 2, 6, 1, 12.8),
    Sketcher.Constraint("DistanceX", 13, 2, 13, 1, 2.7),
    Sketcher.Constraint("DistanceX", 17, 2, 17, 1, 3.1),
    Sketcher.Constraint("DistanceY", 1, 1, 1, 2, 3.5),
    Sketcher.Constraint("DistanceY", 7, 1, 7, 2, 2.9),
    Sketcher.Constraint("DistanceY", 14, 1, 14, 2, 7.5),
    Sketcher.Constraint("DistanceX", 3, 2, -1, 1, 39.0),
    Sketcher.Constraint("DistanceY", 8, 3, -1, 1, 7.6),
])
pocket11 = body.newObject("PartDesign::Pocket", "Pocket010")
pocket11.Profile = sketch12
pocket11.Type = "UpToFirst"

sketch13 = body.newObject("Sketcher::SketchObject", "Sketch012")
sketch13.AttachmentSupport = (doc.getObject("XY_Plane"), [""])
sketch13.MapMode = "FlatFace"
sketch13.AttachmentOffset = App.Placement(V(0, 0, 3), App.Rotation())
sketch13.addGeometry([
    Part.LineSegment(V(-60.9, 5.4, 0), V(-30.9, 5.4, 0)),
    Part.LineSegment(V(-30.9, 5.4, 0), V(-30.9, 8.9, 0)),
    Part.LineSegment(V(-30.9, 8.9, 0), V(-38.5, 8.9, 0)),
    Part.LineSegment(V(-38.5, 8.9, 0), V(-39, 10.4, 0)),
    Part.LineSegment(V(-39, 10.4, 0), V(-38.5, 10.4, 0)),
    Part.LineSegment(V(-38.5, 10.4, 0), V(-38.5, 13.5, 0)),
    Part.LineSegment(V(-38.5, 13.5, 0), V(-51.3, 13.5, 0)),
    Part.LineSegment(V(-51.3, 13.5, 0), V(-51.3, 16.4, 0)),
    Part.ArcOfCircle(Part.Circle(V(-52.3, 16.4, 0), V(0, 0, 1), 1), math.radians(0), math.radians(180)),
    Part.LineSegment(V(-53.3, 16.4, 0), V(-53.3, 13.5, 0)),
    Part.LineSegment(V(-53.3, 13.5, 0), V(-53.1, 10.4, 0)),
    Part.LineSegment(V(-53.1, 10.4, 0), V(-52.6, 10.4, 0)),
    Part.LineSegment(V(-52.6, 10.4, 0), V(-53.1, 8.9, 0)),
    Part.LineSegment(V(-53.1, 8.9, 0), V(-55.8, 8.9, 0)),
    Part.LineSegment(V(-55.8, 8.9, 0), V(-55.8, 16.4, 0)),
    Part.ArcOfCircle(Part.Circle(V(-56.8, 16.4, 0), V(0, 0, 1), 1), math.radians(0), math.radians(180)),
    Part.LineSegment(V(-57.8, 16.4, 0), V(-57.8, 8.9, 0)),
    Part.LineSegment(V(-57.8, 8.9, 0), V(-60.9, 8.9, 0)),
    Part.LineSegment(V(-60.9, 8.9, 0), V(-60.9, 5.4, 0)),
], False)
sketch13.addConstraint([
    Sketcher.Constraint("Coincident", 0, 2, 1, 1),
    Sketcher.Constraint("Coincident", 1, 2, 2, 1),
    Sketcher.Constraint("Coincident", 2, 2, 3, 1),
    Sketcher.Constraint("Coincident", 3, 2, 4, 1),
    Sketcher.Constraint("Coincident", 4, 2, 5, 1),
    Sketcher.Constraint("Coincident", 5, 2, 6, 1),
    Sketcher.Constraint("Coincident", 6, 2, 7, 1),
    Sketcher.Constraint("Tangent", 7, 2, 8, 1),
    Sketcher.Constraint("Tangent", 8, 2, 9, 1),
    Sketcher.Constraint("Coincident", 9, 2, 10, 1),
    Sketcher.Constraint("Coincident", 10, 2, 11, 1),
    Sketcher.Constraint("Coincident", 11, 2, 12, 1),
    Sketcher.Constraint("Coincident", 12, 2, 13, 1),
    Sketcher.Constraint("Coincident", 13, 2, 14, 1),
    Sketcher.Constraint("Tangent", 14, 2, 15, 1),
    Sketcher.Constraint("Tangent", 15, 2, 16, 1),
    Sketcher.Constraint("Coincident", 16, 2, 17, 1),
    Sketcher.Constraint("Coincident", 17, 2, 18, 1),
    Sketcher.Constraint("Coincident", 18, 2, 0, 1),
    Sketcher.Constraint("Horizontal", 0),
    Sketcher.Constraint("Vertical", 1),
    Sketcher.Constraint("Horizontal", 2),
    Sketcher.Constraint("Horizontal", 4),
    Sketcher.Constraint("Vertical", 5),
    Sketcher.Constraint("Horizontal", 6),
    Sketcher.Constraint("Vertical", 7),
    Sketcher.Constraint("Vertical", 9),
    Sketcher.Constraint("Horizontal", 11),
    Sketcher.Constraint("Horizontal", 13),
    Sketcher.Constraint("Vertical", 14),
    Sketcher.Constraint("Vertical", 16),
    Sketcher.Constraint("Horizontal", 17),
    Sketcher.Constraint("Vertical", 18),
    Sketcher.Constraint("Equal", 8, 15),
    Sketcher.Constraint("Horizontal", 8, 3, 15, 3),
    Sketcher.Constraint("Horizontal", 6, 2, 9, 2),
    Sketcher.Constraint("Horizontal", 4, 2, 10, 2),
    Sketcher.Constraint("Horizontal", 2, 2, 12, 2),
    Sketcher.Constraint("Horizontal", 13, 2, 16, 2),
    Sketcher.Constraint("Vertical", 2, 2, 4, 2),
    Sketcher.Constraint("Vertical", 10, 2, 12, 2),
    Sketcher.Constraint("Equal", 4, 11),
    Sketcher.Constraint("Equal", 17, 5),
    Sketcher.Constraint("Radius", 8, 1.0),
    Sketcher.Constraint("DistanceX", 0, 1, 0, 2, 30.0),
    Sketcher.Constraint("DistanceX", 2, 2, 2, 1, 7.6),
    Sketcher.Constraint("DistanceX", 4, 1, 4, 2, 0.5),
    Sketcher.Constraint("DistanceX", 6, 2, 6, 1, 12.8),
    Sketcher.Constraint("DistanceX", 13, 2, 13, 1, 2.7),
    Sketcher.Constraint("DistanceX", 17, 2, 17, 1, 3.1),
    Sketcher.Constraint("DistanceY", 1, 1, 1, 2, 3.5),
    Sketcher.Constraint("DistanceY", 7, 1, 7, 2, 2.9),
    Sketcher.Constraint("DistanceY", 14, 1, 14, 2, 7.5),
    Sketcher.Constraint("DistanceX", 3, 2, -1, 1, 39.0),
    Sketcher.Constraint("DistanceY", -1, 1, 8, 3, 16.4),
])
pocket12 = body.newObject("PartDesign::Pocket", "Pocket011")
pocket12.Profile = sketch13
pocket12.Type = "UpToFirst"

sketch14 = body.newObject("Sketcher::SketchObject", "Sketch013")
sketch14.AttachmentSupport = (doc.getObject("XY_Plane"), [""])
sketch14.MapMode = "FlatFace"
sketch14.AttachmentOffset = App.Placement(V(0, 0, 3), App.Rotation())
sketch14.addGeometry(Part.Circle(V(0, 118, 0), V(0, 0, 1), 4.7), False)
sketch14.addConstraint([
    Sketcher.Constraint("PointOnObject", 0, 3, -2),
    Sketcher.Constraint("Diameter", 0, 9.4),
    Sketcher.Constraint("DistanceY", -1, 1, 0, 3, 118.0),
])
pocket13 = body.newObject("PartDesign::Pocket", "Pocket012")
pocket13.Profile = sketch14
pocket13.Type = "UpToFirst"

sketch15 = body.newObject("Sketcher::SketchObject", "Sketch014")
sketch15.AttachmentSupport = (doc.getObject("XY_Plane"), [""])
sketch15.MapMode = "FlatFace"
sketch15.AttachmentOffset = App.Placement(V(0, 0, 3), App.Rotation())
sketch15.addGeometry([
    Part.LineSegment(V(69, -12, 0), V(69, -80, 0)),
    Part.LineSegment(V(69, -80, 0), V(81, -80, 0)),
    Part.LineSegment(V(81, -80, 0), V(81, -12, 0)),
    Part.LineSegment(V(81, -12, 0), V(69, -12, 0)),
], False)
sketch15.addConstraint([
    Sketcher.Constraint("Coincident", 0, 2, 1, 1),
    Sketcher.Constraint("Coincident", 1, 2, 2, 1),
    Sketcher.Constraint("Coincident", 2, 2, 3, 1),
    Sketcher.Constraint("Coincident", 3, 2, 0, 1),
    Sketcher.Constraint("Vertical", 0),
    Sketcher.Constraint("Horizontal", 1),
    Sketcher.Constraint("Vertical", 2),
    Sketcher.Constraint("Horizontal", 3),
    Sketcher.Constraint("DistanceX", 1, 1, 1, 2, 12.0),
    Sketcher.Constraint("DistanceY", 0, 2, 0, 1, 68.0),
    Sketcher.Constraint("DistanceX", -1, 1, 0, 2, 69.0),
    Sketcher.Constraint("DistanceY", 0, 2, -1, 1, 80.0),
])
pocket14 = body.newObject("PartDesign::Pocket", "Pocket013")
pocket14.Profile = sketch15
pocket14.Type = "UpToFirst"

sketch16 = body.newObject("Sketcher::SketchObject", "Sketch015")
sketch16.AttachmentSupport = (doc.getObject("XY_Plane"), [""])
sketch16.MapMode = "FlatFace"
sketch16.AttachmentOffset = App.Placement(V(0, 0, 3), App.Rotation())
sketch16.addGeometry([
    Part.LineSegment(V(-81, -12, 0), V(-81, -80, 0)),
    Part.LineSegment(V(-81, -80, 0), V(-69, -80, 0)),
    Part.LineSegment(V(-69, -80, 0), V(-69, -12, 0)),
    Part.LineSegment(V(-69, -12, 0), V(-81, -12, 0)),
], False)
sketch16.addConstraint([
    Sketcher.Constraint("Coincident", 0, 2, 1, 1),
    Sketcher.Constraint("Coincident", 1, 2, 2, 1),
    Sketcher.Constraint("Coincident", 2, 2, 3, 1),
    Sketcher.Constraint("Coincident", 3, 2, 0, 1),
    Sketcher.Constraint("Vertical", 0),
    Sketcher.Constraint("Horizontal", 1),
    Sketcher.Constraint("Vertical", 2),
    Sketcher.Constraint("Horizontal", 3),
    Sketcher.Constraint("DistanceX", 1, 1, 1, 2, 12.0),
    Sketcher.Constraint("DistanceY", 0, 2, 0, 1, 68.0),
    Sketcher.Constraint("DistanceX", 0, 2, -1, 1, 81.0),
    Sketcher.Constraint("DistanceY", 0, 2, -1, 1, 80.0),
])
pocket15 = body.newObject("PartDesign::Pocket", "Pocket014")
pocket15.Profile = sketch16
pocket15.Type = "UpToFirst"

doc.recompute()
